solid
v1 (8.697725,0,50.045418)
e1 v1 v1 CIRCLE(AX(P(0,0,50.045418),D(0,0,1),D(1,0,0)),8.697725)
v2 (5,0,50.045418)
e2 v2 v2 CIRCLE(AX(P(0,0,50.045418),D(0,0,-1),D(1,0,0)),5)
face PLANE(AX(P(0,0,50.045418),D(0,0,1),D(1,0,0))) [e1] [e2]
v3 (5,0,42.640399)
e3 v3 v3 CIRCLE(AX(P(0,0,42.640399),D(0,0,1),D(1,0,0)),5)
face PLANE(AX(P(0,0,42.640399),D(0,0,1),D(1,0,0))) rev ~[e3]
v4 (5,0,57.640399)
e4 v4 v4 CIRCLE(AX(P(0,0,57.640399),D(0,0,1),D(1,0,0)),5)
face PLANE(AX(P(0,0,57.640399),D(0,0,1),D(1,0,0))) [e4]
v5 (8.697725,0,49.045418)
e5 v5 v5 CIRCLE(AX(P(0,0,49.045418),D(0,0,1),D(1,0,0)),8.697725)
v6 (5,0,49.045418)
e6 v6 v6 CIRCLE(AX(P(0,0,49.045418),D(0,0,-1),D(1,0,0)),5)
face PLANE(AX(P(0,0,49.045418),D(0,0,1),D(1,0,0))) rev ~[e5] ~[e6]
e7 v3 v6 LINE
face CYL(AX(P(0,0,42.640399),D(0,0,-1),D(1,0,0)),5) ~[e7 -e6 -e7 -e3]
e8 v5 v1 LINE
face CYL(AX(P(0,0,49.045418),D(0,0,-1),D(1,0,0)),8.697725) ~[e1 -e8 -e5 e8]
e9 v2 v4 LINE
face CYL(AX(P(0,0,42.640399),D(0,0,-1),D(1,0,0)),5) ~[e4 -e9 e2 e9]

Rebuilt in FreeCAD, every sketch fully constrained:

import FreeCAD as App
import Part
import Sketcher

V = App.Vector

doc = App.newDocument("Part")
body = doc.addObject("PartDesign::Body", "Body")

# Sketch on XY plane
sketch1 = doc.addObject("Sketcher::SketchObject", "Sketch")
body.addObject(sketch1)
sketch1.AttachmentSupport = (doc.XY_Plane, [""])
sketch1.MapMode = "FlatFace"
sketch1.AttachmentOffset = App.Placement(V(0, 0, 57.640399), App.Rotation())
sketch1.addGeometry(Part.Circle(V(0, 0, 0), V(0, 0, 1), 8.697725), False)
sketch1.addConstraint([
    Sketcher.Constraint("Coincident", 0, 3, -1, 1),
    Sketcher.Constraint("Diameter", 0, 17.39545),
])
pad1 = doc.addObject("PartDesign::Pad", "Pad")
body.addObject(pad1)
pad1.Profile = sketch1
pad1.Length = 1
body2 = doc.addObject("PartDesign::Body", "Body001")
doc.recompute()

body.Placement = App.Placement(V(0, 0, -8.594981), App.Rotation(V(0, 0, 1), 0))
boolean = doc.addObject("PartDesign::Boolean", "Boolean")
body2.addObject(boolean)
boolean.Type = "Fuse"
boolean.addObjects([body])
body3 = doc.addObject("PartDesign::Body", "Body002")

# Sketch on XY plane
sketch2 = doc.addObject("Sketcher::SketchObject", "Sketch001")
body3.addObject(sketch2)
sketch2.AttachmentSupport = (doc.getObject("XY_Plane002"), [""])
sketch2.MapMode = "FlatFace"
sketch2.AttachmentOffset = App.Placement(V(0, 0, 42.640399), App.Rotation())
sketch2.addGeometry(Part.Circle(V(0, 0, 0), V(0, 0, 1), 5), False)
sketch2.addConstraint([
    Sketcher.Constraint("Coincident", 0, 3, -1, 1),
    Sketcher.Constraint("Diameter", 0, 10.0),
])
pad2 = doc.addObject("PartDesign::Pad", "Pad001")
body3.addObject(pad2)
pad2.Profile = sketch2
pad2.Length = 15
doc.recompute()

boolean2 = doc.addObject("PartDesign::Boolean", "Boolean001")
body3.addObject(boolean2)
boolean2.Type = "Fuse"
boolean2.addObjects([body2])

doc.recompute()
